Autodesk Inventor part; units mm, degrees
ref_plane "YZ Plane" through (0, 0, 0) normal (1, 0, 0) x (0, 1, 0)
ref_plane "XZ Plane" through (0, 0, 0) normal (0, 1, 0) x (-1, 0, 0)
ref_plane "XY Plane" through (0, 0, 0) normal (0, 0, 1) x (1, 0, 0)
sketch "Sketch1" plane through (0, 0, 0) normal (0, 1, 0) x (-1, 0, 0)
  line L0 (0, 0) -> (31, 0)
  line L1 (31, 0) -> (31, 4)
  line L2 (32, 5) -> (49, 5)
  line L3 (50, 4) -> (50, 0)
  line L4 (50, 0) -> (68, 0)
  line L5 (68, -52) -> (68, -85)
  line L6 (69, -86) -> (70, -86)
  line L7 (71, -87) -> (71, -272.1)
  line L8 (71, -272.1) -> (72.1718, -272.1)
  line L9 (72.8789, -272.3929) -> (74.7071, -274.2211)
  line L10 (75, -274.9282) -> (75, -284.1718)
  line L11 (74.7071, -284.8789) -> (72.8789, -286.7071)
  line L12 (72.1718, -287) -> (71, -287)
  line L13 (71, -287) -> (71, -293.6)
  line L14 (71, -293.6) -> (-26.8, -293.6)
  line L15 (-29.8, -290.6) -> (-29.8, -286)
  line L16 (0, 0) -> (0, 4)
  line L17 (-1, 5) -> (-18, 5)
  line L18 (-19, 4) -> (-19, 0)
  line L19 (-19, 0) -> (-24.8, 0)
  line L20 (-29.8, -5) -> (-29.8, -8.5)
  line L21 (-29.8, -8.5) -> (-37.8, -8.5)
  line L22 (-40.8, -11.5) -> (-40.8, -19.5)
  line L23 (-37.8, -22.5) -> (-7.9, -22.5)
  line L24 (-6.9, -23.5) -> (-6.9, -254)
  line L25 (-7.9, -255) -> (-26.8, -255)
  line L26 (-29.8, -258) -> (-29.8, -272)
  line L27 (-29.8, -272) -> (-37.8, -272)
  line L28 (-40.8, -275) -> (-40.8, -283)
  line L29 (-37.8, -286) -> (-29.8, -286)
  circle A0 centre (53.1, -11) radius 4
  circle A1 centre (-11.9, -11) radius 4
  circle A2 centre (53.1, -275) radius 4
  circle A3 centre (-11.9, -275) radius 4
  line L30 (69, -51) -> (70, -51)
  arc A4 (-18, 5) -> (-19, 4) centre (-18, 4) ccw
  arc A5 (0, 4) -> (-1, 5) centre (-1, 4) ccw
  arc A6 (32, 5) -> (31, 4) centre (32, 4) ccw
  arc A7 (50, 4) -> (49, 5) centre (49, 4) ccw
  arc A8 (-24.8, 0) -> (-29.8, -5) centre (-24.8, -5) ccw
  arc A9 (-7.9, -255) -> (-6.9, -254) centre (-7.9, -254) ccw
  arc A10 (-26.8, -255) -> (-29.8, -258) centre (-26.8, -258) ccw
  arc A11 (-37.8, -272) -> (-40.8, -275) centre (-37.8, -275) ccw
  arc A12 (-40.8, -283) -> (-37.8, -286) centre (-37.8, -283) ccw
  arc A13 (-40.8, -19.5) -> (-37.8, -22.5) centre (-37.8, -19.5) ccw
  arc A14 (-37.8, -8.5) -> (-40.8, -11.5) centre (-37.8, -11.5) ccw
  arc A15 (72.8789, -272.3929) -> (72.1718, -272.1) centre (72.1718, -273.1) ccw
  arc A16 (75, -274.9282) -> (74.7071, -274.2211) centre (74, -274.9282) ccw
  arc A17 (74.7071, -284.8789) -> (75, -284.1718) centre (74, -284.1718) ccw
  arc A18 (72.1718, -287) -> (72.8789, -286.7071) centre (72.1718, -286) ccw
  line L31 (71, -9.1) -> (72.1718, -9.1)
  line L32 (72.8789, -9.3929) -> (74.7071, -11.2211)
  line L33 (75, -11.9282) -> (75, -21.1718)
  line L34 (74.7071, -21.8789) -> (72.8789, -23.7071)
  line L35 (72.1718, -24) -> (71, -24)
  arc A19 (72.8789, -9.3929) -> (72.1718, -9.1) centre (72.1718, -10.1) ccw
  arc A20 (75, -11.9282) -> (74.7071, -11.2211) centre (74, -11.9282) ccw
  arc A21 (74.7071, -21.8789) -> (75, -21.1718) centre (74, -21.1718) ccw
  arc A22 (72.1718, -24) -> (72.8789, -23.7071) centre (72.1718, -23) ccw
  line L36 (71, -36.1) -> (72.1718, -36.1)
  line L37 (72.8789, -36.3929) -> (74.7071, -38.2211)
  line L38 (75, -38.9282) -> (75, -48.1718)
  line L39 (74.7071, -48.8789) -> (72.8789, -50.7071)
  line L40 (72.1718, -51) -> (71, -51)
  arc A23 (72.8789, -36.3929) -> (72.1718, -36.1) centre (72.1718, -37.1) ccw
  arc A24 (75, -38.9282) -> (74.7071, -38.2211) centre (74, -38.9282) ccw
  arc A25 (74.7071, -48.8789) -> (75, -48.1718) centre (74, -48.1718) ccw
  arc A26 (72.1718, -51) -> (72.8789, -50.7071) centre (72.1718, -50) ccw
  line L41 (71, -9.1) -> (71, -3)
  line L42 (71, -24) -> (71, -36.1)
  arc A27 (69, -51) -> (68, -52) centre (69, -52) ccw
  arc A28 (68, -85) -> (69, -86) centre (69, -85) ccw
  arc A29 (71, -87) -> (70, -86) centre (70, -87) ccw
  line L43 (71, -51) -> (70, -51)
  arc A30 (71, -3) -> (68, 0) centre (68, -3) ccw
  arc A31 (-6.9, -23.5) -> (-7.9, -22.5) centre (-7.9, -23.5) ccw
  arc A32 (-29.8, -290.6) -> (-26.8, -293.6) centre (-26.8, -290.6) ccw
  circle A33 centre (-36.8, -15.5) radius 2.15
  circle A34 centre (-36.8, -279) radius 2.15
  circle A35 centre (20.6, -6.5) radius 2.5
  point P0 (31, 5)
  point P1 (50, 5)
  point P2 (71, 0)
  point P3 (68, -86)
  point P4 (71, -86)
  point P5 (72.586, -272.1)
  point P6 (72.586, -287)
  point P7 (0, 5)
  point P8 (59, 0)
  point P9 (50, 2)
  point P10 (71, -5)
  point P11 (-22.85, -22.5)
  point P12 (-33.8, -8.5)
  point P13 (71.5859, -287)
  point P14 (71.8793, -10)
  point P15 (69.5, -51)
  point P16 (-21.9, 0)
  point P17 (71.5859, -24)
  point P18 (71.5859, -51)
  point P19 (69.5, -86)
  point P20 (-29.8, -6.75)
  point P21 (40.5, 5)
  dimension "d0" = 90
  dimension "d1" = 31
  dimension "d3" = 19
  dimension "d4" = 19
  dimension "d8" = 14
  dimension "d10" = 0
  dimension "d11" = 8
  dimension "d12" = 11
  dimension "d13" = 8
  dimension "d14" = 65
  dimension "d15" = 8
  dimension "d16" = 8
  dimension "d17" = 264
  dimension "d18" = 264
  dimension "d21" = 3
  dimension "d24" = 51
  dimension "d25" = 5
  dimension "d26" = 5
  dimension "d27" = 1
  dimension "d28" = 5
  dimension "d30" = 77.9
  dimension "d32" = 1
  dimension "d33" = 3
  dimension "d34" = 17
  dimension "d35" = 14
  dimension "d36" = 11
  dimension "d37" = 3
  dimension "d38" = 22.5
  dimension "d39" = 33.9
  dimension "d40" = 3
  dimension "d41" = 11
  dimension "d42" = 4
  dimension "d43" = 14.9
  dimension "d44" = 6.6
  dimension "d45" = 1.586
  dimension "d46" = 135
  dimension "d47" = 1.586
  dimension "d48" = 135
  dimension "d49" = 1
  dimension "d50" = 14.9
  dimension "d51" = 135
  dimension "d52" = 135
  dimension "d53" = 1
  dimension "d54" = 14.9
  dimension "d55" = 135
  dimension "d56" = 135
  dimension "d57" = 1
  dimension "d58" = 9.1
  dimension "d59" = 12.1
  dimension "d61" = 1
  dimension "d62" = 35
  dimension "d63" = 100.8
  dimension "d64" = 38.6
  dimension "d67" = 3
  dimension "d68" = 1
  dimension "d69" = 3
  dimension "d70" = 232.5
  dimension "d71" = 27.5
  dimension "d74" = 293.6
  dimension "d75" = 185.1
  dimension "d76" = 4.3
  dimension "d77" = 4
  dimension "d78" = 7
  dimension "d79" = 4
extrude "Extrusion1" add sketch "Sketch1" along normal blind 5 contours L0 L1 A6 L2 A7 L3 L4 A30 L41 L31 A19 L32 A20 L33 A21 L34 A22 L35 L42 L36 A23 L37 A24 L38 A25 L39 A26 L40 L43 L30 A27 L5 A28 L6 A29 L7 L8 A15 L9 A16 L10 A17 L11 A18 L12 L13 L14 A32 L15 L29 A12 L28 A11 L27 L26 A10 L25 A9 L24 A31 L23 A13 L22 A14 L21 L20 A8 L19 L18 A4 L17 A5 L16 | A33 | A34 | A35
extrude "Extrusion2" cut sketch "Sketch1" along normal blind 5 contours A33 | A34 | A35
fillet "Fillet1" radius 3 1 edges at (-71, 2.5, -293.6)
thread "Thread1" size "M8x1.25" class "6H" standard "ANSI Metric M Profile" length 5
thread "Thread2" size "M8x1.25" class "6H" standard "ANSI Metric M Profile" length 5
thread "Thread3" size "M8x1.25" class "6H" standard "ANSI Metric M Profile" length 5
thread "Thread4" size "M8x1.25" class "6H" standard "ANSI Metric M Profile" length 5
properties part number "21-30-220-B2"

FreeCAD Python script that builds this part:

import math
import FreeCAD as App
import Part
import Sketcher
from FreeCAD import Vector


def edges_at(feature, points):
    """Names of the edges that pass closest to the given points."""
    edges = feature.Shape.Edges
    near = lambda p: min(range(len(edges)), key=lambda i: edges[i].distToShape(Part.Vertex(*p))[0])
    return sorted({f"Edge{near(p) + 1}" for p in points})

doc = App.newDocument("Part")
body = doc.addObject("PartDesign::Body", "Body")

# Sketch on XZ plane
sketch1 = body.newObject("Sketcher::SketchObject", "Sketch")
sketch1.AttachmentSupport = (doc.getObject("XZ_Plane"), [""])
sketch1.MapMode = "FlatFace"
sketch1.addGeometry([
    Part.LineSegment(Vector(-31, 0, 0), Vector(0, 0, 0)),  # 0
    Part.LineSegment(Vector(0, 0, 0), Vector(0, 4, 0)),  # 1
    Part.ArcOfCircle(Part.Circle(Vector(1, 4, 0), Vector(0, 0, 1), 1), math.radians(90), math.radians(180)),  # 2
    Part.LineSegment(Vector(1, 5, 0), Vector(18, 5, 0)),  # 3
    Part.ArcOfCircle(Part.Circle(Vector(18, 4, 0), Vector(0, 0, 1), 1), math.radians(0), math.radians(90)),  # 4
    Part.LineSegment(Vector(19, 4, 0), Vector(19, 0, 0)),  # 5
    Part.LineSegment(Vector(19, 0, 0), Vector(24.8, 0, 0)),  # 6
    Part.ArcOfCircle(Part.Circle(Vector(24.8, -5, 0), Vector(0, 0, 1), 5), math.radians(0), math.radians(90)),  # 7
    Part.LineSegment(Vector(29.8, -5, 0), Vector(29.8, -8.5, 0)),  # 8
    Part.LineSegment(Vector(29.8, -8.5, 0), Vector(37.8, -8.5, 0)),  # 9
    Part.ArcOfCircle(Part.Circle(Vector(37.8, -11.5, 0), Vector(0, 0, 1), 3), math.radians(0), math.radians(90)),  # 10
    Part.LineSegment(Vector(40.8, -11.5, 0), Vector(40.8, -19.5, 0)),  # 11
    Part.ArcOfCircle(Part.Circle(Vector(37.8, -19.5, 0), Vector(0, 0, 1), 3), math.radians(-90), math.radians(0)),  # 12
    Part.LineSegment(Vector(37.8, -22.5, 0), Vector(7.9, -22.5, 0)),  # 13
    Part.ArcOfCircle(Part.Circle(Vector(7.9, -23.5, 0), Vector(0, 0, 1), 1), math.radians(90), math.radians(180)),  # 14
    Part.LineSegment(Vector(6.9, -23.5, 0), Vector(6.9, -254, 0)),  # 15
    Part.ArcOfCircle(Part.Circle(Vector(7.9, -254, 0), Vector(0, 0, 1), 1), math.radians(180), math.radians(270)),  # 16
    Part.LineSegment(Vector(7.9, -255, 0), Vector(26.8, -255, 0)),  # 17
    Part.ArcOfCircle(Part.Circle(Vector(26.8, -258, 0), Vector(0, 0, 1), 3), math.radians(0), math.radians(90)),  # 18
    Part.LineSegment(Vector(29.8, -258, 0), Vector(29.8, -272, 0)),  # 19
    Part.LineSegment(Vector(29.8, -272, 0), Vector(37.8, -272, 0)),  # 20
    Part.ArcOfCircle(Part.Circle(Vector(37.8, -275, 0), Vector(0, 0, 1), 3), math.radians(0), math.radians(90)),  # 21
    Part.LineSegment(Vector(40.8, -275, 0), Vector(40.8, -283, 0)),  # 22
    Part.ArcOfCircle(Part.Circle(Vector(37.8, -283, 0), Vector(0, 0, 1), 3), math.radians(-90), math.radians(0)),  # 23
    Part.LineSegment(Vector(37.8, -286, 0), Vector(29.8, -286, 0)),  # 24
    Part.LineSegment(Vector(29.8, -286, 0), Vector(29.8, -290.6, 0)),  # 25
    Part.ArcOfCircle(Part.Circle(Vector(26.8, -290.6, 0), Vector(0, 0, 1), 3), math.radians(-90), math.radians(0)),  # 26
    Part.LineSegment(Vector(26.8, -293.6, 0), Vector(-71, -293.6, 0)),  # 27
    Part.LineSegment(Vector(-71, -293.6, 0), Vector(-71, -287, 0)),  # 28
    Part.LineSegment(Vector(-71, -287, 0), Vector(-72.2, -287, 0)),  # 29
    Part.ArcOfCircle(Part.Circle(Vector(-72.2, -286, 0), Vector(0, 0, 1), 1), math.radians(-135), math.radians(-90)),  # 30
    Part.LineSegment(Vector(-72.9, -286.7, 0), Vector(-74.7, -284.9, 0)),  # 31
    Part.ArcOfCircle(Part.Circle(Vector(-74, -284.2, 0), Vector(0, 0, 1), 1), math.radians(180), math.radians(225)),  # 32
    Part.LineSegment(Vector(-75, -284.2, 0), Vector(-75, -274.9, 0)),  # 33
    Part.ArcOfCircle(Part.Circle(Vector(-74, -274.9, 0), Vector(0, 0, 1), 1), math.radians(135), math.radians(180)),  # 34
    Part.LineSegment(Vector(-74.7, -274.2, 0), Vector(-72.9, -272.4, 0)),  # 35
    Part.ArcOfCircle(Part.Circle(Vector(-72.2, -273.1, 0), Vector(0, 0, 1), 1), math.radians(90), math.radians(135)),  # 36
    Part.LineSegment(Vector(-72.2, -272.1, 0), Vector(-71, -272.1, 0)),  # 37
    Part.LineSegment(Vector(-71, -272.1, 0), Vector(-71, -87, 0)),  # 38
    Part.ArcOfCircle(Part.Circle(Vector(-70, -87, 0), Vector(0, 0, 1), 1), math.radians(90), math.radians(180)),  # 39
    Part.LineSegment(Vector(-70, -86, 0), Vector(-69, -86, 0)),  # 40
    Part.ArcOfCircle(Part.Circle(Vector(-69, -85, 0), Vector(0, 0, 1), 1), math.radians(-90), math.radians(0)),  # 41
    Part.LineSegment(Vector(-68, -85, 0), Vector(-68, -52, 0)),  # 42
    Part.ArcOfCircle(Part.Circle(Vector(-69, -52, 0), Vector(0, 0, 1), 1), math.radians(0), math.radians(90)),  # 43
    Part.LineSegment(Vector(-69, -51, 0), Vector(-72.2, -51, 0)),  # 44
    Part.ArcOfCircle(Part.Circle(Vector(-72.2, -50, 0), Vector(0, 0, 1), 1), math.radians(-135), math.radians(-90)),  # 45
    Part.LineSegment(Vector(-72.9, -50.7, 0), Vector(-74.7, -48.9, 0)),  # 46
    Part.ArcOfCircle(Part.Circle(Vector(-74, -48.2, 0), Vector(0, 0, 1), 1), math.radians(180), math.radians(225)),  # 47
    Part.LineSegment(Vector(-75, -48.2, 0), Vector(-75, -38.9, 0)),  # 48
    Part.ArcOfCircle(Part.Circle(Vector(-74, -38.9, 0), Vector(0, 0, 1), 1), math.radians(135), math.radians(180)),  # 49
    Part.LineSegment(Vector(-74.7, -38.2, 0), Vector(-72.9, -36.4, 0)),  # 50
    Part.ArcOfCircle(Part.Circle(Vector(-72.2, -37.1, 0), Vector(0, 0, 1), 1), math.radians(90), math.radians(135)),  # 51
    Part.LineSegment(Vector(-72.2, -36.1, 0), Vector(-71, -36.1, 0)),  # 52
    Part.LineSegment(Vector(-71, -36.1, 0), Vector(-71, -24, 0)),  # 53
    Part.LineSegment(Vector(-71, -24, 0), Vector(-72.2, -24, 0)),  # 54
    Part.ArcOfCircle(Part.Circle(Vector(-72.2, -23, 0), Vector(0, 0, 1), 1), math.radians(-135), math.radians(-90)),  # 55
    Part.LineSegment(Vector(-72.9, -23.7, 0), Vector(-74.7, -21.9, 0)),  # 56
    Part.ArcOfCircle(Part.Circle(Vector(-74, -21.2, 0), Vector(0, 0, 1), 1), math.radians(180), math.radians(225)),  # 57
    Part.LineSegment(Vector(-75, -21.2, 0), Vector(-75, -11.9, 0)),  # 58
    Part.ArcOfCircle(Part.Circle(Vector(-74, -11.9, 0), Vector(0, 0, 1), 1), math.radians(135), math.radians(180)),  # 59
    Part.LineSegment(Vector(-74.7, -11.2, 0), Vector(-72.9, -9.4, 0)),  # 60
    Part.ArcOfCircle(Part.Circle(Vector(-72.2, -10.1, 0), Vector(0, 0, 1), 1), math.radians(90), math.radians(135)),  # 61
    Part.LineSegment(Vector(-72.2, -9.1, 0), Vector(-71, -9.1, 0)),  # 62
    Part.LineSegment(Vector(-71, -9.1, 0), Vector(-71, -3, 0)),  # 63
    Part.ArcOfCircle(Part.Circle(Vector(-68, -3, 0), Vector(0, 0, 1), 3), math.radians(90), math.radians(180)),  # 64
    Part.LineSegment(Vector(-68, 0, 0), Vector(-50, 0, 0)),  # 65
    Part.LineSegment(Vector(-50, 0, 0), Vector(-50, 4, 0)),  # 66
    Part.ArcOfCircle(Part.Circle(Vector(-49, 4, 0), Vector(0, 0, 1), 1), math.radians(90), math.radians(180)),  # 67
    Part.LineSegment(Vector(-49, 5, 0), Vector(-32, 5, 0)),  # 68
    Part.ArcOfCircle(Part.Circle(Vector(-32, 4, 0), Vector(0, 0, 1), 1), math.radians(0), math.radians(90)),  # 69
    Part.LineSegment(Vector(-31, 4, 0), Vector(-31, 0, 0)),  # 70
    Part.Circle(Vector(11.9, -275, 0), Vector(0, 0, 1), 4),  # 71
    Part.Circle(Vector(-53.1, -275, 0), Vector(0, 0, 1), 4),  # 72
    Part.Circle(Vector(11.9, -11, 0), Vector(0, 0, 1), 4),  # 73
    Part.Circle(Vector(-53.1, -11, 0), Vector(0, 0, 1), 4),  # 74
], False)
sketch1.addConstraint([
    Sketcher.Constraint("Coincident", 0, 2, 1, 1),
    Sketcher.Constraint("Tangent", 1, 2, 2, 2),
    Sketcher.Constraint("Tangent", 2, 1, 3, 1),
    Sketcher.Constraint("Tangent", 3, 2, 4, 2),
    Sketcher.Constraint("Tangent", 4, 1, 5, 1),
    Sketcher.Constraint("Coincident", 5, 2, 6, 1),
    Sketcher.Constraint("Tangent", 6, 2, 7, 2),
    Sketcher.Constraint("Tangent", 7, 1, 8, 1),
    Sketcher.Constraint("Coincident", 8, 2, 9, 1),
    Sketcher.Constraint("Tangent", 9, 2, 10, 2),
    Sketcher.Constraint("Tangent", 10, 1, 11, 1),
    Sketcher.Constraint("Tangent", 11, 2, 12, 2),
    Sketcher.Constraint("Tangent", 12, 1, 13, 1),
    Sketcher.Constraint("Tangent", 13, 2, 14, 1),
    Sketcher.Constraint("Tangent", 14, 2, 15, 1),
    Sketcher.Constraint("Tangent", 15, 2, 16, 1),
    Sketcher.Constraint("Tangent", 16, 2, 17, 1),
    Sketcher.Constraint("Tangent", 17, 2, 18, 2),
    Sketcher.Constraint("Tangent", 18, 1, 19, 1),
    Sketcher.Constraint("Coincident", 19, 2, 20, 1),
    Sketcher.Constraint("Tangent", 20, 2, 21, 2),
    Sketcher.Constraint("Tangent", 21, 1, 22, 1),
    Sketcher.Constraint("Tangent", 22, 2, 23, 2),
    Sketcher.Constraint("Tangent", 23, 1, 24, 1),
    Sketcher.Constraint("Coincident", 24, 2, 25, 1),
    Sketcher.Constraint("Tangent", 25, 2, 26, 2),
    Sketcher.Constraint("Tangent", 26, 1, 27, 1),
    Sketcher.Constraint("Coincident", 27, 2, 28, 1),
    Sketcher.Constraint("Coincident", 28, 2, 29, 1),
    Sketcher.Constraint("Tangent", 29, 2, 30, 2),
    Sketcher.Constraint("Tangent", 30, 1, 31, 1),
    Sketcher.Constraint("Tangent", 31, 2, 32, 2),
    Sketcher.Constraint("Tangent", 32, 1, 33, 1),
    Sketcher.Constraint("Tangent", 33, 2, 34, 2),
    Sketcher.Constraint("Tangent", 34, 1, 35, 1),
    Sketcher.Constraint("Tangent", 35, 2, 36, 2),
    Sketcher.Constraint("Tangent", 36, 1, 37, 1),
    Sketcher.Constraint("Coincident", 37, 2, 38, 1),
    Sketcher.Constraint("Tangent", 38, 2, 39, 2),
    Sketcher.Constraint("Tangent", 39, 1, 40, 1),
    Sketcher.Constraint("Tangent", 40, 2, 41, 1),
    Sketcher.Constraint("Tangent", 41, 2, 42, 1),
    Sketcher.Constraint("Tangent", 42, 2, 43, 1),
    Sketcher.Constraint("Tangent", 43, 2, 44, 1),
    Sketcher.Constraint("Tangent", 44, 2, 45, 2),
    Sketcher.Constraint("Tangent", 45, 1, 46, 1),
    Sketcher.Constraint("Tangent", 46, 2, 47, 2),
    Sketcher.Constraint("Tangent", 47, 1, 48, 1),
    Sketcher.Constraint("Tangent", 48, 2, 49, 2),
    Sketcher.Constraint("Tangent", 49, 1, 50, 1),
    Sketcher.Constraint("Tangent", 50, 2, 51, 2),
    Sketcher.Constraint("Tangent", 51, 1, 52, 1),
    Sketcher.Constraint("Coincident", 52, 2, 53, 1),
    Sketcher.Constraint("Coincident", 53, 2, 54, 1),
    Sketcher.Constraint("Tangent", 54, 2, 55, 2),
    Sketcher.Constraint("Tangent", 55, 1, 56, 1),
    Sketcher.Constraint("Tangent", 56, 2, 57, 2),
    Sketcher.Constraint("Tangent", 57, 1, 58, 1),
    Sketcher.Constraint("Tangent", 58, 2, 59, 2),
    Sketcher.Constraint("Tangent", 59, 1, 60, 1),
    Sketcher.Constraint("Tangent", 60, 2, 61, 2),
    Sketcher.Constraint("Tangent", 61, 1, 62, 1),
    Sketcher.Constraint("Coincident", 62, 2, 63, 1),
    Sketcher.Constraint("Tangent", 63, 2, 64, 2),
    Sketcher.Constraint("Tangent", 64, 1, 65, 1),
    Sketcher.Constraint("Coincident", 65, 2, 66, 1),
    Sketcher.Constraint("Tangent", 66, 2, 67, 2),
    Sketcher.Constraint("Tangent", 67, 1, 68, 1),
    Sketcher.Constraint("Tangent", 68, 2, 69, 2),
    Sketcher.Constraint("Tangent", 69, 1, 70, 1),
    Sketcher.Constraint("Coincident", 70, 2, 0, 1),
    Sketcher.Constraint("Horizontal", 0),
    Sketcher.Constraint("Vertical", 1),
    Sketcher.Constraint("Horizontal", 3),
    Sketcher.Constraint("Vertical", 5),
    Sketcher.Constraint("Horizontal", 6),
    Sketcher.Constraint("Vertical", 8),
    Sketcher.Constraint("Horizontal", 9),
    Sketcher.Constraint("Vertical", 11),
    Sketcher.Constraint("Horizontal", 13),
    Sketcher.Constraint("Vertical", 15),
    Sketcher.Constraint("Horizontal", 17),
    Sketcher.Constraint("Vertical", 19),
    Sketcher.Constraint("Horizontal", 20),
    Sketcher.Constraint("Vertical", 22),
    Sketcher.Constraint("Horizontal", 24),
    Sketcher.Constraint("Vertical", 25),
    Sketcher.Constraint("Horizontal", 27),
    Sketcher.Constraint("Vertical", 28),
    Sketcher.Constraint("Horizontal", 29),
    Sketcher.Constraint("Vertical", 33),
    Sketcher.Constraint("Horizontal", 37),
    Sketcher.Constraint("Vertical", 38),
    Sketcher.Constraint("Horizontal", 40),
    Sketcher.Constraint("Vertical", 42),
    Sketcher.Constraint("Horizontal", 44),
    Sketcher.Constraint("Vertical", 48),
    Sketcher.Constraint("Horizontal", 52),
    Sketcher.Constraint("Vertical", 53),
    Sketcher.Constraint("Horizontal", 54),
    Sketcher.Constraint("Vertical", 58),
    Sketcher.Constraint("Horizontal", 62),
    Sketcher.Constraint("Vertical", 63),
    Sketcher.Constraint("Horizontal", 65),
    Sketcher.Constraint("Vertical", 66),
    Sketcher.Constraint("Horizontal", 68),
    Sketcher.Constraint("Vertical", 70),
    Sketcher.Constraint("Coincident", 0, 2, -1, 1),
    Sketcher.Constraint("Equal", 2, 4),
    Sketcher.Constraint("Equal", 10, 12),
    Sketcher.Constraint("Equal", 4, 14),
    Sketcher.Constraint("Equal", 14, 16),
    Sketcher.Constraint("Equal", 12, 18),
    Sketcher.Constraint("Equal", 18, 21),
    Sketcher.Constraint("Equal", 21, 23),
    Sketcher.Constraint("Equal", 23, 26),
    Sketcher.Constraint("Equal", 16, 30),
    Sketcher.Constraint("Equal", 30, 32),
    Sketcher.Constraint("Equal", 32, 34),
    Sketcher.Constraint("Equal", 34, 36),
    Sketcher.Constraint("Equal", 36, 39),
    Sketcher.Constraint("Equal", 39, 41),
    Sketcher.Constraint("Equal", 41, 43),
    Sketcher.Constraint("Equal", 43, 45),
    Sketcher.Constraint("Equal", 45, 47),
    Sketcher.Constraint("Equal", 47, 49),
    Sketcher.Constraint("Equal", 49, 51),
    Sketcher.Constraint("Equal", 51, 55),
    Sketcher.Constraint("Equal", 55, 57),
    Sketcher.Constraint("Equal", 57, 59),
    Sketcher.Constraint("Equal", 59, 61),
    Sketcher.Constraint("Equal", 26, 64),
    Sketcher.Constraint("Equal", 61, 67),
    Sketcher.Constraint("Equal", 67, 69),
    Sketcher.Constraint("Equal", 71, 72),
    Sketcher.Constraint("Equal", 72, 73),
    Sketcher.Constraint("Equal", 73, 74),
    Sketcher.Constraint("PointOnObject", 5, 2, -1),
    Sketcher.Constraint("PointOnObject", 64, 1, -1),
    Sketcher.Constraint("Perpendicular", 31, 35),
    Sketcher.Constraint("Perpendicular", 35, 46),
    Sketcher.Constraint("Perpendicular", 46, 50),
    Sketcher.Constraint("Perpendicular", 50, 56),
    Sketcher.Constraint("Perpendicular", 56, 60),
    Sketcher.Constraint("Horizontal", 4, 3, 67, 3),
    Sketcher.Constraint("Horizontal", 21, 3, 71, 3),
    Sketcher.Constraint("Horizontal", 71, 3, 72, 3),
    Sketcher.Constraint("Horizontal", 73, 3, 74, 3),
    Sketcher.Constraint("Horizontal", 30, 3, 23, 1),
    Sketcher.Constraint("Vertical", 12, 3, 21, 3),
    Sketcher.Constraint("Vertical", 18, 3, 26, 3),
    Sketcher.Constraint("Vertical", 30, 3, 36, 3),
    Sketcher.Constraint("Vertical", 36, 3, 45, 3),
    Sketcher.Constraint("Vertical", 34, 3, 47, 3),
    Sketcher.Constraint("Vertical", 45, 3, 51, 3),
    Sketcher.Constraint("Vertical", 51, 3, 55, 3),
    Sketcher.Constraint("Vertical", 49, 3, 57, 3),
    Sketcher.Constraint("Vertical", 55, 3, 61, 3),
    Sketcher.Constraint("Vertical", 71, 3, 73, 3),
    Sketcher.Constraint("Vertical", 72, 3, 74, 3),
    Sketcher.Constraint("Vertical", 8, 2, 18, 1),
    Sketcher.Constraint("Vertical", 31, 2, 34, 1),
    Sketcher.Constraint("Vertical", 28, 2, 37, 2),
    Sketcher.Constraint("Vertical", 64, 3, 41, 2),
    Sketcher.Constraint("Vertical", 38, 2, 52, 2),
    Sketcher.Constraint("Vertical", 53, 2, 62, 2),
    Sketcher.Constraint("Equal", 3, 68),
    Sketcher.Constraint("Equal", 24, 11),
    Sketcher.Constraint("Equal", 11, 22),
    Sketcher.Constraint("Equal", 33, 48),
    Sketcher.Constraint("Equal", 48, 58),
    Sketcher.Constraint("Diameter", 71, 8.0),
    Sketcher.Constraint("Radius", 2, 1.0),
    Sketcher.Constraint("Radius", 7, 5.0),
    Sketcher.Constraint("Radius", 10, 3.0),
    Sketcher.Constraint("DistanceX", 0, 1, 0, 2, 31.0),
    Sketcher.Constraint("DistanceX", 3, 1, 3, 2, 17.0),
    Sketcher.Constraint("DistanceX", 9, 1, 9, 2, 8.0),
    Sketcher.Constraint("DistanceY", 1, 1, 1, 2, 4.0),
    Sketcher.Constraint("DistanceY", 19, 2, 19, 1, 14.0),
    Sketcher.Constraint("DistanceY", 28, 1, 28, 2, 6.6),
    Sketcher.Constraint("DistanceY", 38, 1, 38, 2, 185.1),
    Sketcher.Constraint("DistanceY", 53, 1, 53, 2, 12.1),
    Sketcher.Constraint("DistanceY", 73, 3, -1, 1, 11.0),
    Sketcher.Constraint("DistanceY", 43, 2, -1, 1, 51.0),
    Sketcher.Constraint("DistanceY", 12, 1, -1, 1, 22.5),
    Sketcher.Constraint("DistanceY", 26, 1, -1, 1, 293.6),
    Sketcher.Constraint("DistanceY", 61, 1, -1, 1, 9.1),
    Sketcher.Constraint("DistanceX", 65, 1, 65, 2, 18.0),
    Sketcher.Constraint("DistanceX", 6, 1, 6, 2, 5.8),
    Sketcher.Constraint("DistanceX", 13, 2, 13, 1, 29.9),
    Sketcher.Constraint("DistanceX", 32, 3, -1, 1, 74.0),
    Sketcher.Constraint("DistanceX", -1, 1, 71, 3, 11.9),
    Sketcher.Constraint("DistanceX", 72, 3, -1, 1, 53.1),
    Sketcher.Constraint("DistanceX", 29, 2, 29, 1, 1.1718),
])
pad1 = body.newObject("PartDesign::Pad", "Pad")
pad1.Profile = sketch1
pad1.Length = 5
pad1.Reversed = True

# Sketch on XZ plane
sketch2 = body.newObject("Sketcher::SketchObject", "Sketch001")
sketch2.AttachmentSupport = (doc.getObject("XZ_Plane"), [""])
sketch2.MapMode = "FlatFace"
sketch2.addGeometry([
    Part.Circle(Vector(36.8, -15.5, 0), Vector(0, 0, 1), 2.1),
    Part.Circle(Vector(36.8, -279, 0), Vector(0, 0, 1), 2.1),
    Part.Circle(Vector(-20.6, -6.5, 0), Vector(0, 0, 1), 2.5),
], False)
sketch2.addConstraint([
    Sketcher.Constraint("Equal", 0, 1),
    Sketcher.Constraint("Vertical", 0, 3, 1, 3),
    Sketcher.Constraint("Diameter", 2, 5.0),
    Sketcher.Constraint("Diameter", 0, 4.3),
    Sketcher.Constraint("DistanceY", 1, 3, -1, 1, 279.0),
    Sketcher.Constraint("DistanceY", 0, 3, 2, 3, 9.0),
    Sketcher.Constraint("DistanceX", -1, 1, 0, 3, 36.8),
    Sketcher.Constraint("DistanceY", 0, 3, -1, 1, 15.5),
    Sketcher.Constraint("DistanceX", 2, 3, -1, 1, 20.6),
])
pocket1 = body.newObject("PartDesign::Pocket", "Pocket")
pocket1.Profile = sketch2
pocket1.Length = 5
doc.recompute()

fillet = body.newObject("PartDesign::Fillet", "Fillet")
fillet.Base = (pocket1, edges_at(pocket1, [(-71, 2.5, -293.6)]))
fillet.Radius = 3

doc.recompute()
